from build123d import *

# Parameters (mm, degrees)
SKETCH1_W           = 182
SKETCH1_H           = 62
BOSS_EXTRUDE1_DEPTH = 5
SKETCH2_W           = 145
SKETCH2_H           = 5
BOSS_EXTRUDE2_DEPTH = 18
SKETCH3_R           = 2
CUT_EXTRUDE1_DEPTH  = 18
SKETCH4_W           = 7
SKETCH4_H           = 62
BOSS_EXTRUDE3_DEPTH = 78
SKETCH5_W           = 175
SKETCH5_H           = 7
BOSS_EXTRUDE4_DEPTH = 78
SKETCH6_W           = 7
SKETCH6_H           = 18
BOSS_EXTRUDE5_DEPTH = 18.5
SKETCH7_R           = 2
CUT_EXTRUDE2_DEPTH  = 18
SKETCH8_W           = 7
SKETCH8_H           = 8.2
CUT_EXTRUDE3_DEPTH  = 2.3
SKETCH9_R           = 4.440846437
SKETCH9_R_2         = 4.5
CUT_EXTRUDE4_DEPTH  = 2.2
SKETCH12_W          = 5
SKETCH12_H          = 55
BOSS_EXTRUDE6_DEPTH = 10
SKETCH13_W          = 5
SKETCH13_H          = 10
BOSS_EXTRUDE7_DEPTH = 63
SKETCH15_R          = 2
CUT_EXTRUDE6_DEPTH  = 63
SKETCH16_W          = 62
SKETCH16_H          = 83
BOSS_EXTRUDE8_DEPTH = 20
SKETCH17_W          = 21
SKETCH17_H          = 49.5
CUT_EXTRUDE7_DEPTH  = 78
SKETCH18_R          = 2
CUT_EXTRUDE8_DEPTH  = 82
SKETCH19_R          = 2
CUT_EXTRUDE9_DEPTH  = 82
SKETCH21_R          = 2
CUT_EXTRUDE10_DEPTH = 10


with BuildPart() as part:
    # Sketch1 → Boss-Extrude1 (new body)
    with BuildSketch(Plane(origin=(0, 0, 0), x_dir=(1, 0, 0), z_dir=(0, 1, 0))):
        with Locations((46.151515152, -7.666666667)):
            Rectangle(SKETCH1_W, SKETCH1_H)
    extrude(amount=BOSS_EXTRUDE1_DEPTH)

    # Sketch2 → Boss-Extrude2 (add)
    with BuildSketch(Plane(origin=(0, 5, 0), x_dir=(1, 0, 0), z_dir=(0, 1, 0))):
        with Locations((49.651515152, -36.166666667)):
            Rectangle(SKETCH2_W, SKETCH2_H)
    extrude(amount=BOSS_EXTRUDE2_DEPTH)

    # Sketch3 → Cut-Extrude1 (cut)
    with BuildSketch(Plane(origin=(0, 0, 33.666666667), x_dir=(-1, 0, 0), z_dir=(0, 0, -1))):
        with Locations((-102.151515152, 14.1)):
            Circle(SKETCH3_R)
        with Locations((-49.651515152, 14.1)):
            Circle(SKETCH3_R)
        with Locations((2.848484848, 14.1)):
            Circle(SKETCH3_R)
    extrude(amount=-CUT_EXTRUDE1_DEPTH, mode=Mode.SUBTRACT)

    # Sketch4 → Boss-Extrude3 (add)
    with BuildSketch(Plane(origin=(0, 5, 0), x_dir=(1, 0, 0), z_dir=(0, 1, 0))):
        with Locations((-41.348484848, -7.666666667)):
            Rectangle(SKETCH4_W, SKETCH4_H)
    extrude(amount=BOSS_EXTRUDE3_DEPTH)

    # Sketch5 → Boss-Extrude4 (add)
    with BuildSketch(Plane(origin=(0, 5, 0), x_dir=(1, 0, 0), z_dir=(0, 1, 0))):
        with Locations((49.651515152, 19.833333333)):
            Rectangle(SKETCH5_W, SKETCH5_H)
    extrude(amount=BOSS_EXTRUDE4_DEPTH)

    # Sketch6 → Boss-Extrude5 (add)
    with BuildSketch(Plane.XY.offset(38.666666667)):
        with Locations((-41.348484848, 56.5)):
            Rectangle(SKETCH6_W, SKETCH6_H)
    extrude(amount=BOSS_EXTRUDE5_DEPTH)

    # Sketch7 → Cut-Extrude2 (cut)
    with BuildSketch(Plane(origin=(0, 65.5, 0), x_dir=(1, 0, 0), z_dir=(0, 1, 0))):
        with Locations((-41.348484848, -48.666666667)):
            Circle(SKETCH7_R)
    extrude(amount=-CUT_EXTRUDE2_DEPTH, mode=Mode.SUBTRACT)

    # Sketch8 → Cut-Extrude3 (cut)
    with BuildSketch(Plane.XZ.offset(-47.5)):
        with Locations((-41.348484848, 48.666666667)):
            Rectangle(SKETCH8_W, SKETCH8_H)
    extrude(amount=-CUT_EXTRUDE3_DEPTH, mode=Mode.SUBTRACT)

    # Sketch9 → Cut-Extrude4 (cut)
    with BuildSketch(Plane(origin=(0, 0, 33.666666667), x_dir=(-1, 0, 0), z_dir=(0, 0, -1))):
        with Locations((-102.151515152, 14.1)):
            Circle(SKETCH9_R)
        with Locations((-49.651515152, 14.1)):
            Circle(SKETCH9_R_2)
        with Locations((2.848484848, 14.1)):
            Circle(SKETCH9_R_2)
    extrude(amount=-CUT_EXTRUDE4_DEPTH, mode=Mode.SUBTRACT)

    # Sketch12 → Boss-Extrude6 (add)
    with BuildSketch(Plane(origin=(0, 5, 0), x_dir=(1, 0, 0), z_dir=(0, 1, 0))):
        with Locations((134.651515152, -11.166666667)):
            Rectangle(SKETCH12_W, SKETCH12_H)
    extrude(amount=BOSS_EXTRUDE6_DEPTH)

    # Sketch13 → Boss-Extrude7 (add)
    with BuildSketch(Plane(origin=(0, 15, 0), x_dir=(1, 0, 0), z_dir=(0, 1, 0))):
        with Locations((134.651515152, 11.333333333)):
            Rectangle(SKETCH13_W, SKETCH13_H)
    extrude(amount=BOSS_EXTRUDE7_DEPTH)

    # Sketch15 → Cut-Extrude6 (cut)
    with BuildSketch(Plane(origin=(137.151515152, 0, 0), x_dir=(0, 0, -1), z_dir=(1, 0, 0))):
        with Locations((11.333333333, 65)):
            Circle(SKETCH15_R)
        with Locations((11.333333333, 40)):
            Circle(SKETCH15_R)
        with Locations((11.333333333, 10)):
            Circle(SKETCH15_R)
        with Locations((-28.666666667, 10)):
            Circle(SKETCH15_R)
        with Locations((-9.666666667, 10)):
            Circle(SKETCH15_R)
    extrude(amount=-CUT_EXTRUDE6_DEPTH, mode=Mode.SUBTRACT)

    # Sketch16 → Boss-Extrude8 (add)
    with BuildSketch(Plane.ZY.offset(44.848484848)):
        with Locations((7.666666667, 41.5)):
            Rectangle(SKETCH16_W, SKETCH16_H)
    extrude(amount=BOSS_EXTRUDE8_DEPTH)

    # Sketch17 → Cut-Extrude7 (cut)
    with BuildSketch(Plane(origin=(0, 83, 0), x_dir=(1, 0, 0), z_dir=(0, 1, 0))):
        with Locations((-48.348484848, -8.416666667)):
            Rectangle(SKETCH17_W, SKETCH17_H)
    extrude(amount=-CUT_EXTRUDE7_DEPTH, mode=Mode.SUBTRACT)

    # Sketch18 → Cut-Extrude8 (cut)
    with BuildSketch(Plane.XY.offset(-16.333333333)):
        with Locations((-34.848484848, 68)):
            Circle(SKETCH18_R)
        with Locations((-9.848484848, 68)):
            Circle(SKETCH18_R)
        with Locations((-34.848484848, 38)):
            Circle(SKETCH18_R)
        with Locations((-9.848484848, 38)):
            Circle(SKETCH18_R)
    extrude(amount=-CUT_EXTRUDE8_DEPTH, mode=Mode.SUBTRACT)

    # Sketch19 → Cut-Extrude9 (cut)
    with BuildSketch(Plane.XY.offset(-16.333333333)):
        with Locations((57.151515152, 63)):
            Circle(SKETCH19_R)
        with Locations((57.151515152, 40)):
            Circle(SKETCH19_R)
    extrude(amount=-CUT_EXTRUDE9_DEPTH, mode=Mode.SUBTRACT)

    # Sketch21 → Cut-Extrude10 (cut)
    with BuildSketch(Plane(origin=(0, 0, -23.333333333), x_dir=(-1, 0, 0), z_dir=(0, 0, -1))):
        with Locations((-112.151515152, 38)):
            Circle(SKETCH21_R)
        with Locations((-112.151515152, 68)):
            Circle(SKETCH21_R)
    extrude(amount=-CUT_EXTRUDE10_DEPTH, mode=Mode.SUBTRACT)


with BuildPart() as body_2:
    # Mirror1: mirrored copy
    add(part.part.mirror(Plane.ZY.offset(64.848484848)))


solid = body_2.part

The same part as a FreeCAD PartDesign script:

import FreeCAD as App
import Part
import Sketcher
from FreeCAD import Vector
Q = App.Units.Quantity

doc = App.newDocument("Part")
body = doc.addObject("PartDesign::Body", "Body")

# Sketch on XZ plane
sketch1 = doc.addObject("Sketcher::SketchObject", "Sketch")
body.addObject(sketch1)
sketch1.AttachmentSupport = (doc.XZ_Plane, [""])
sketch1.MapMode = "FlatFace"
sketch1.addGeometry([
    Part.LineSegment(Vector(-45, -23, 0), Vector(-45, 39, 0)),
    Part.LineSegment(Vector(-45, 39, 0), Vector(137, 39, 0)),
    Part.LineSegment(Vector(137, 39, 0), Vector(137, -23, 0)),
    Part.LineSegment(Vector(137, -23, 0), Vector(-45, -23, 0)),
], False)
sketch1.addConstraint([
    Sketcher.Constraint("Coincident", 0, 2, 1, 1),
    Sketcher.Constraint("Coincident", 1, 2, 2, 1),
    Sketcher.Constraint("Coincident", 2, 2, 3, 1),
    Sketcher.Constraint("Coincident", 3, 2, 0, 1),
    Sketcher.Constraint("Vertical", 0),
    Sketcher.Constraint("Horizontal", 1),
    Sketcher.Constraint("Vertical", 2),
    Sketcher.Constraint("Horizontal", 3),
    Sketcher.Constraint("DistanceX", 1, 1, 1, 2, Q("182 mm")),
    Sketcher.Constraint("DistanceY", 0, 1, 0, 2, Q("62 mm")),
    Sketcher.Constraint("DistanceX", 0, 2, -1, 1, Q("44.848485 mm")),
    Sketcher.Constraint("DistanceY", -1, 1, 0, 2, Q("38.666667 mm")),
])
pad1 = doc.addObject("PartDesign::Pad", "Pad")
body.addObject(pad1)
pad1.Profile = sketch1
pad1.Length = 5
pad1.Reversed = True

# Sketch on XZ plane
sketch2 = doc.addObject("Sketcher::SketchObject", "Sketch001")
body.addObject(sketch2)
sketch2.AttachmentSupport = (doc.XZ_Plane, [""])
sketch2.MapMode = "FlatFace"
sketch2.AttachmentOffset = App.Placement(Vector(0, 0, -5), App.Rotation())
sketch2.addGeometry([
    Part.LineSegment(Vector(-23, 34, 0), Vector(-23, 39, 0)),
    Part.LineSegment(Vector(-23, 39, 0), Vector(122, 39, 0)),
    Part.LineSegment(Vector(122, 39, 0), Vector(122, 34, 0)),
    Part.LineSegment(Vector(122, 34, 0), Vector(-23, 34, 0)),
], False)
sketch2.addConstraint([
    Sketcher.Constraint("Coincident", 0, 2, 1, 1),
    Sketcher.Constraint("Coincident", 1, 2, 2, 1),
    Sketcher.Constraint("Coincident", 2, 2, 3, 1),
    Sketcher.Constraint("Coincident", 3, 2, 0, 1),
    Sketcher.Constraint("Vertical", 0),
    Sketcher.Constraint("Horizontal", 1),
    Sketcher.Constraint("Vertical", 2),
    Sketcher.Constraint("Horizontal", 3),
    Sketcher.Constraint("DistanceX", 1, 1, 1, 2, Q("145 mm")),
    Sketcher.Constraint("DistanceY", 0, 1, 0, 2, Q("5 mm")),
    Sketcher.Constraint("DistanceX", 0, 2, -1, 1, Q("22.848485 mm")),
    Sketcher.Constraint("DistanceY", -1, 1, 0, 2, Q("38.666667 mm")),
])
pad2 = doc.addObject("PartDesign::Pad", "Pad001")
body.addObject(pad2)
pad2.Profile = sketch2
pad2.Length = 18
pad2.Reversed = True

# Sketch on XY plane
sketch3 = doc.addObject("Sketcher::SketchObject", "Sketch002")
body.addObject(sketch3)
sketch3.AttachmentSupport = (doc.XY_Plane, [""])
sketch3.MapMode = "FlatFace"
sketch3.AttachmentOffset = App.Placement(Vector(0, 0, 33.666667), App.Rotation())
sketch3.addGeometry([
    Part.Circle(Vector(102.2, 14.1, 0), Vector(0, 0, 1), 2),
    Part.Circle(Vector(49.7, 14.1, 0), Vector(0, 0, 1), 2),
    Part.Circle(Vector(-2.8, 14.1, 0), Vector(0, 0, 1), 2),
], False)
sketch3.addConstraint([
    Sketcher.Constraint("Equal", 0, 1),
    Sketcher.Constraint("Equal", 1, 2),
    Sketcher.Constraint("Horizontal", 0, 3, 1, 3),
    Sketcher.Constraint("Horizontal", 1, 3, 2, 3),
    Sketcher.Constraint("Diameter", 0, Q("4 mm")),
    Sketcher.Constraint("DistanceX", 2, 3, 0, 3, Q("105 mm")),
    Sketcher.Constraint("DistanceY", -1, 1, 0, 3, Q("14.1 mm")),
    Sketcher.Constraint("DistanceX", 1, 3, 0, 3, Q("52.5 mm")),
    Sketcher.Constraint("DistanceX", -1, 1, 0, 3, Q("102.151515 mm")),
])
pocket1 = doc.addObject("PartDesign::Pocket", "Pocket")
body.addObject(pocket1)
pocket1.Profile = sketch3
pocket1.Length = 18
pocket1.Reversed = True

# Sketch on XZ plane
sketch4 = doc.addObject("Sketcher::SketchObject", "Sketch003")
body.addObject(sketch4)
sketch4.AttachmentSupport = (doc.XZ_Plane, [""])
sketch4.MapMode = "FlatFace"
sketch4.AttachmentOffset = App.Placement(Vector(0, 0, -5), App.Rotation())
sketch4.addGeometry([
    Part.LineSegment(Vector(-45, -23, 0), Vector(-45, 39, 0)),
    Part.LineSegment(Vector(-45, 39, 0), Vector(-38, 39, 0)),
    Part.LineSegment(Vector(-38, 39, 0), Vector(-38, -23, 0)),
    Part.LineSegment(Vector(-38, -23, 0), Vector(-45, -23, 0)),
], False)
sketch4.addConstraint([
    Sketcher.Constraint("Coincident", 0, 2, 1, 1),
    Sketcher.Constraint("Coincident", 1, 2, 2, 1),
    Sketcher.Constraint("Coincident", 2, 2, 3, 1),
    Sketcher.Constraint("Coincident", 3, 2, 0, 1),
    Sketcher.Constraint("Vertical", 0),
    Sketcher.Constraint("Horizontal", 1),
    Sketcher.Constraint("Vertical", 2),
    Sketcher.Constraint("Horizontal", 3),
    Sketcher.Constraint("DistanceX", 1, 1, 1, 2, Q("7 mm")),
    Sketcher.Constraint("DistanceY", 0, 1, 0, 2, Q("62 mm")),
    Sketcher.Constraint("DistanceX", 0, 2, -1, 1, Q("44.848485 mm")),
    Sketcher.Constraint("DistanceY", -1, 1, 0, 2, Q("38.666667 mm")),
])
pad3 = doc.addObject("PartDesign::Pad", "Pad002")
body.addObject(pad3)
pad3.Profile = sketch4
pad3.Length = 78
pad3.Reversed = True

# Sketch on XZ plane
sketch5 = doc.addObject("Sketcher::SketchObject", "Sketch004")
body.addObject(sketch5)
sketch5.AttachmentSupport = (doc.XZ_Plane, [""])
sketch5.MapMode = "FlatFace"
sketch5.AttachmentOffset = App.Placement(Vector(0, 0, -5), App.Rotation())
sketch5.addGeometry([
    Part.LineSegment(Vector(-38, -23, 0), Vector(-38, -16, 0)),
    Part.LineSegment(Vector(-38, -16, 0), Vector(137, -16, 0)),
    Part.LineSegment(Vector(137, -16, 0), Vector(137, -23, 0)),
    Part.LineSegment(Vector(137, -23, 0), Vector(-38, -23, 0)),
], False)
sketch5.addConstraint([
    Sketcher.Constraint("Coincident", 0, 2, 1, 1),
    Sketcher.Constraint("Coincident", 1, 2, 2, 1),
    Sketcher.Constraint("Coincident", 2, 2, 3, 1),
    Sketcher.Constraint("Coincident", 3, 2, 0, 1),
    Sketcher.Constraint("Vertical", 0),
    Sketcher.Constraint("Horizontal", 1),
    Sketcher.Constraint("Vertical", 2),
    Sketcher.Constraint("Horizontal", 3),
    Sketcher.Constraint("DistanceX", 1, 1, 1, 2, Q("175 mm")),
    Sketcher.Constraint("DistanceY", 0, 1, 0, 2, Q("7 mm")),
    Sketcher.Constraint("DistanceX", 0, 2, -1, 1, Q("37.848485 mm")),
    Sketcher.Constraint("DistanceY", 0, 2, -1, 1, Q("16.333333 mm")),
])
pad4 = doc.addObject("PartDesign::Pad", "Pad003")
body.addObject(pad4)
pad4.Profile = sketch5
pad4.Length = 78
pad4.Reversed = True

# Sketch on XY plane
sketch6 = doc.addObject("Sketcher::SketchObject", "Sketch005")
body.addObject(sketch6)
sketch6.AttachmentSupport = (doc.XY_Plane, [""])
sketch6.MapMode = "FlatFace"
sketch6.AttachmentOffset = App.Placement(Vector(0, 0, 38.666667), App.Rotation())
sketch6.addGeometry([
    Part.LineSegment(Vector(-45, 66, 0), Vector(-45, 48, 0)),
    Part.LineSegment(Vector(-45, 48, 0), Vector(-38, 48, 0)),
    Part.LineSegment(Vector(-38, 48, 0), Vector(-38, 66, 0)),
    Part.LineSegment(Vector(-38, 66, 0), Vector(-45, 66, 0)),
], False)
sketch6.addConstraint([
    Sketcher.Constraint("Coincident", 0, 2, 1, 1),
    Sketcher.Constraint("Coincident", 1, 2, 2, 1),
    Sketcher.Constraint("Coincident", 2, 2, 3, 1),
    Sketcher.Constraint("Coincident", 3, 2, 0, 1),
    Sketcher.Constraint("Vertical", 0),
    Sketcher.Constraint("Horizontal", 1),
    Sketcher.Constraint("Vertical", 2),
    Sketcher.Constraint("Horizontal", 3),
    Sketcher.Constraint("DistanceX", 1, 1, 1, 2, Q("7 mm")),
    Sketcher.Constraint("DistanceY", 0, 2, 0, 1, Q("18 mm")),
    Sketcher.Constraint("DistanceY", -1, 1, 0, 2, Q("47.5 mm")),
    Sketcher.Constraint("DistanceX", 0, 2, -1, 1, Q("44.848485 mm")),
])
pad5 = doc.addObject("PartDesign::Pad", "Pad004")
body.addObject(pad5)
pad5.Profile = sketch6
pad5.Length = 18.5

# Sketch on XZ plane
sketch7 = doc.addObject("Sketcher::SketchObject", "Sketch006")
body.addObject(sketch7)
sketch7.AttachmentSupport = (doc.XZ_Plane, [""])
sketch7.MapMode = "FlatFace"
sketch7.AttachmentOffset = App.Placement(Vector(0, 0, -65.5), App.Rotation())
sketch7.addGeometry(Part.Circle(Vector(-41.3, 48.7, 0), Vector(0, 0, 1), 2), False)
sketch7.addConstraint([
    Sketcher.Constraint("Diameter", 0, Q("4 mm")),
    Sketcher.Constraint("DistanceX", 0, 3, -1, 1, Q("41.348485 mm")),
    Sketcher.Constraint("DistanceY", -1, 1, 0, 3, Q("48.666667 mm")),
])
pocket2 = doc.addObject("PartDesign::Pocket", "Pocket001")
body.addObject(pocket2)
pocket2.Profile = sketch7
pocket2.Length = 18
pocket2.Reversed = True

# Sketch on XZ plane
sketch8 = doc.addObject("Sketcher::SketchObject", "Sketch007")
body.addObject(sketch8)
sketch8.AttachmentSupport = (doc.XZ_Plane, [""])
sketch8.MapMode = "FlatFace"
sketch8.AttachmentOffset = App.Placement(Vector(0, 0, -47.5), App.Rotation())
sketch8.addGeometry([
    Part.LineSegment(Vector(-45, 53, 0), Vector(-45, 45, 0)),
    Part.LineSegment(Vector(-45, 45, 0), Vector(-38, 45, 0)),
    Part.LineSegment(Vector(-38, 45, 0), Vector(-38, 53, 0)),
    Part.LineSegment(Vector(-38, 53, 0), Vector(-45, 53, 0)),
], False)
sketch8.addConstraint([
    Sketcher.Constraint("Coincident", 0, 2, 1, 1),
    Sketcher.Constraint("Coincident", 1, 2, 2, 1),
    Sketcher.Constraint("Coincident", 2, 2, 3, 1),
    Sketcher.Constraint("Coincident", 3, 2, 0, 1),
    Sketcher.Constraint("Vertical", 0),
    Sketcher.Constraint("Horizontal", 1),
    Sketcher.Constraint("Vertical", 2),
    Sketcher.Constraint("Horizontal", 3),
    Sketcher.Constraint("DistanceX", 1, 1, 1, 2, Q("7 mm")),
    Sketcher.Constraint("DistanceY", 0, 2, 0, 1, Q("8.2 mm")),
    Sketcher.Constraint("DistanceX", 0, 2, -1, 1, Q("44.848485 mm")),
    Sketcher.Constraint("DistanceY", -1, 1, 0, 2, Q("44.566667 mm")),
])
pocket3 = doc.addObject("PartDesign::Pocket", "Pocket002")
body.addObject(pocket3)
pocket3.Profile = sketch8
pocket3.Length = 2.3

# Sketch on XY plane
sketch9 = doc.addObject("Sketcher::SketchObject", "Sketch008")
body.addObject(sketch9)
sketch9.AttachmentSupport = (doc.XY_Plane, [""])
sketch9.MapMode = "FlatFace"
sketch9.AttachmentOffset = App.Placement(Vector(0, 0, 33.666667), App.Rotation())
sketch9.addGeometry([
    Part.Circle(Vector(102.2, 14.1, 0), Vector(0, 0, 1), 4.4),
    Part.Circle(Vector(49.7, 14.1, 0), Vector(0, 0, 1), 4.5),
    Part.Circle(Vector(-2.8, 14.1, 0), Vector(0, 0, 1), 4.5),
], False)
sketch9.addConstraint([
    Sketcher.Constraint("Equal", 1, 2),
    Sketcher.Constraint("Horizontal", 0, 3, 1, 3),
    Sketcher.Constraint("Horizontal", 1, 3, 2, 3),
    Sketcher.Constraint("Diameter", 1, Q("9 mm")),
    Sketcher.Constraint("DistanceX", 2, 3, 0, 3, Q("105 mm")),
    Sketcher.Constraint("DistanceY", -1, 1, 0, 3, Q("14.1 mm")),
    Sketcher.Constraint("DistanceX", 1, 3, 0, 3, Q("52.5 mm")),
    Sketcher.Constraint("Diameter", 0, Q("8.881693 mm")),
    Sketcher.Constraint("DistanceX", -1, 1, 0, 3, Q("102.151515 mm")),
])
pocket4 = doc.addObject("PartDesign::Pocket", "Pocket003")
body.addObject(pocket4)
pocket4.Profile = sketch9
pocket4.Length = 2.2
pocket4.Reversed = True

# Sketch on XZ plane
sketch10 = doc.addObject("Sketcher::SketchObject", "Sketch009")
body.addObject(sketch10)
sketch10.AttachmentSupport = (doc.XZ_Plane, [""])
sketch10.MapMode = "FlatFace"
sketch10.AttachmentOffset = App.Placement(Vector(0, 0, -5), App.Rotation())
sketch10.addGeometry([
    Part.LineSegment(Vector(132, -16, 0), Vector(132, 39, 0)),
    Part.LineSegment(Vector(132, 39, 0), Vector(137, 39, 0)),
    Part.LineSegment(Vector(137, 39, 0), Vector(137, -16, 0)),
    Part.LineSegment(Vector(137, -16, 0), Vector(132, -16, 0)),
], False)
sketch10.addConstraint([
    Sketcher.Constraint("Coincident", 0, 2, 1, 1),
    Sketcher.Constraint("Coincident", 1, 2, 2, 1),
    Sketcher.Constraint("Coincident", 2, 2, 3, 1),
    Sketcher.Constraint("Coincident", 3, 2, 0, 1),
    Sketcher.Constraint("Vertical", 0),
    Sketcher.Constraint("Horizontal", 1),
    Sketcher.Constraint("Vertical", 2),
    Sketcher.Constraint("Horizontal", 3),
    Sketcher.Constraint("DistanceX", 1, 1, 1, 2, Q("5 mm")),
    Sketcher.Constraint("DistanceY", 0, 1, 0, 2, Q("55 mm")),
    Sketcher.Constraint("DistanceX", -1, 1, 0, 2, Q("132.151515 mm")),
    Sketcher.Constraint("DistanceY", -1, 1, 0, 2, Q("38.666667 mm")),
])
pad6 = doc.addObject("PartDesign::Pad", "Pad005")
body.addObject(pad6)
pad6.Profile = sketch10
pad6.Length = 10
pad6.Reversed = True

# Sketch on XZ plane
sketch11 = doc.addObject("Sketcher::SketchObject", "Sketch010")
body.addObject(sketch11)
sketch11.AttachmentSupport = (doc.XZ_Plane, [""])
sketch11.MapMode = "FlatFace"
sketch11.AttachmentOffset = App.Placement(Vector(0, 0, -15), App.Rotation())
sketch11.addGeometry([
    Part.LineSegment(Vector(132, -16, 0), Vector(132, -6, 0)),
    Part.LineSegment(Vector(132, -6, 0), Vector(137, -6, 0)),
    Part.LineSegment(Vector(137, -6, 0), Vector(137, -16, 0)),
    Part.LineSegment(Vector(137, -16, 0), Vector(132, -16, 0)),
], False)
sketch11.addConstraint([
    Sketcher.Constraint("Coincident", 0, 2, 1, 1),
    Sketcher.Constraint("Coincident", 1, 2, 2, 1),
    Sketcher.Constraint("Coincident", 2, 2, 3, 1),
    Sketcher.Constraint("Coincident", 3, 2, 0, 1),
    Sketcher.Constraint("Vertical", 0),
    Sketcher.Constraint("Horizontal", 1),
    Sketcher.Constraint("Vertical", 2),
    Sketcher.Constraint("Horizontal", 3),
    Sketcher.Constraint("DistanceX", 1, 1, 1, 2, Q("5 mm")),
    Sketcher.Constraint("DistanceY", 0, 1, 0, 2, Q("10 mm")),
    Sketcher.Constraint("DistanceX", -1, 1, 0, 2, Q("132.151515 mm")),
    Sketcher.Constraint("DistanceY", 0, 2, -1, 1, Q("6.333333 mm")),
])
pad7 = doc.addObject("PartDesign::Pad", "Pad006")
body.addObject(pad7)
pad7.Profile = sketch11
pad7.Length = 63
pad7.Reversed = True

# Sketch on YZ plane
sketch12 = doc.addObject("Sketcher::SketchObject", "Sketch011")
body.addObject(sketch12)
sketch12.AttachmentSupport = (doc.YZ_Plane, [""])
sketch12.MapMode = "FlatFace"
sketch12.AttachmentOffset = App.Placement(Vector(0, 0, 137.151515), App.Rotation())
sketch12.addGeometry([
    Part.Circle(Vector(65, -11.3, 0), Vector(0, 0, 1), 2),  # 0
    Part.Circle(Vector(40, -11.3, 0), Vector(0, 0, 1), 2),  # 1
    Part.Circle(Vector(10, -11.3, 0), Vector(0, 0, 1), 2),  # 2
    Part.Circle(Vector(10, 28.7, 0), Vector(0, 0, 1), 2),  # 3
    Part.Circle(Vector(10, 9.7, 0), Vector(0, 0, 1), 2),  # 4
], False)
sketch12.addConstraint([
    Sketcher.Constraint("Equal", 0, 1),
    Sketcher.Constraint("Equal", 1, 2),
    Sketcher.Constraint("Equal", 2, 3),
    Sketcher.Constraint("Equal", 3, 4),
    Sketcher.Constraint("Horizontal", 0, 3, 1, 3),
    Sketcher.Constraint("Horizontal", 1, 3, 2, 3),
    Sketcher.Constraint("Vertical", 2, 3, 3, 3),
    Sketcher.Constraint("Vertical", 3, 3, 4, 3),
    Sketcher.Constraint("Diameter", 0, Q("4 mm")),
    Sketcher.Constraint("DistanceX", -1, 1, 0, 3, Q("65 mm")),
    Sketcher.Constraint("DistanceX", -1, 1, 1, 3, Q("40 mm")),
    Sketcher.Constraint("DistanceX", -1, 1, 2, 3, Q("10 mm")),
    Sketcher.Constraint("DistanceY", 2, 3, 3, 3, Q("40 mm")),
    Sketcher.Constraint("DistanceY", 4, 3, 3, 3, Q("19 mm")),
    Sketcher.Constraint("DistanceY", 0, 3, -1, 1, Q("11.333333 mm")),
])
pocket5 = doc.addObject("PartDesign::Pocket", "Pocket004")
body.addObject(pocket5)
pocket5.Profile = sketch12
pocket5.Length = 63

# Sketch on YZ plane
sketch13 = doc.addObject("Sketcher::SketchObject", "Sketch012")
body.addObject(sketch13)
sketch13.AttachmentSupport = (doc.YZ_Plane, [""])
sketch13.MapMode = "FlatFace"
sketch13.AttachmentOffset = App.Placement(Vector(0, 0, -44.848485), App.Rotation())
sketch13.addGeometry([
    Part.LineSegment(Vector(83, -23, 0), Vector(0, -23, 0)),
    Part.LineSegment(Vector(0, -23, 0), Vector(0, 39, 0)),
    Part.LineSegment(Vector(0, 39, 0), Vector(83, 39, 0)),
    Part.LineSegment(Vector(83, 39, 0), Vector(83, -23, 0)),
], False)
sketch13.addConstraint([
    Sketcher.Constraint("Coincident", 0, 2, 1, 1),
    Sketcher.Constraint("Coincident", 1, 2, 2, 1),
    Sketcher.Constraint("Coincident", 2, 2, 3, 1),
    Sketcher.Constraint("Coincident", 3, 2, 0, 1),
    Sketcher.Constraint("Horizontal", 0),
    Sketcher.Constraint("Vertical", 1),
    Sketcher.Constraint("Horizontal", 2),
    Sketcher.Constraint("Vertical", 3),
    Sketcher.Constraint("PointOnObject", 0, 2, -2),
    Sketcher.Constraint("DistanceX", 0, 2, 0, 1, Q("83 mm")),
    Sketcher.Constraint("DistanceY", 1, 1, 1, 2, Q("62 mm")),
    Sketcher.Constraint("DistanceY", 0, 2, -1, 1, Q("23.333333 mm")),
])
pad8 = doc.addObject("PartDesign::Pad", "Pad007")
body.addObject(pad8)
pad8.Profile = sketch13
pad8.Length = 20
pad8.Reversed = True

# Sketch on XZ plane
sketch14 = doc.addObject("Sketcher::SketchObject", "Sketch013")
body.addObject(sketch14)
sketch14.AttachmentSupport = (doc.XZ_Plane, [""])
sketch14.MapMode = "FlatFace"
sketch14.AttachmentOffset = App.Placement(Vector(0, 0, -83), App.Rotation())
sketch14.addGeometry([
    Part.LineSegment(Vector(-59, -16, 0), Vector(-59, 33, 0)),
    Part.LineSegment(Vector(-59, 33, 0), Vector(-38, 33, 0)),
    Part.LineSegment(Vector(-38, 33, 0), Vector(-38, -16, 0)),
    Part.LineSegment(Vector(-38, -16, 0), Vector(-59, -16, 0)),
], False)
sketch14.addConstraint([
    Sketcher.Constraint("Coincident", 0, 2, 1, 1),
    Sketcher.Constraint("Coincident", 1, 2, 2, 1),
    Sketcher.Constraint("Coincident", 2, 2, 3, 1),
    Sketcher.Constraint("Coincident", 3, 2, 0, 1),
    Sketcher.Constraint("Vertical", 0),
    Sketcher.Constraint("Horizontal", 1),
    Sketcher.Constraint("Vertical", 2),
    Sketcher.Constraint("Horizontal", 3),
    Sketcher.Constraint("DistanceX", 1, 1, 1, 2, Q("21 mm")),
    Sketcher.Constraint("DistanceY", 0, 1, 0, 2, Q("49.5 mm")),
    Sketcher.Constraint("DistanceX", 0, 2, -1, 1, Q("58.848485 mm")),
    Sketcher.Constraint("DistanceY", -1, 1, 0, 2, Q("33.166667 mm")),
])
pocket6 = doc.addObject("PartDesign::Pocket", "Pocket005")
body.addObject(pocket6)
pocket6.Profile = sketch14
pocket6.Length = 78
pocket6.Reversed = True

# Sketch on XY plane
sketch15 = doc.addObject("Sketcher::SketchObject", "Sketch014")
body.addObject(sketch15)
sketch15.AttachmentSupport = (doc.XY_Plane, [""])
sketch15.MapMode = "FlatFace"
sketch15.AttachmentOffset = App.Placement(Vector(0, 0, -16.333333), App.Rotation())
sketch15.addGeometry([
    Part.Circle(Vector(-34.8, 68, 0), Vector(0, 0, 1), 2),
    Part.Circle(Vector(-9.8, 68, 0), Vector(0, 0, 1), 2),
    Part.Circle(Vector(-34.8, 38, 0), Vector(0, 0, 1), 2),
    Part.Circle(Vector(-9.8, 38, 0), Vector(0, 0, 1), 2),
], False)
sketch15.addConstraint([
    Sketcher.Constraint("Equal", 0, 1),
    Sketcher.Constraint("Equal", 1, 2),
    Sketcher.Constraint("Equal", 2, 3),
    Sketcher.Constraint("Horizontal", 0, 3, 1, 3),
    Sketcher.Constraint("Horizontal", 2, 3, 3, 3),
    Sketcher.Constraint("Vertical", 0, 3, 2, 3),
    Sketcher.Constraint("Vertical", 1, 3, 3, 3),
    Sketcher.Constraint("Diameter", 0, Q("4 mm")),
    Sketcher.Constraint("DistanceY", -1, 1, 0, 3, Q("68 mm")),
    Sketcher.Constraint("DistanceY", -1, 1, 2, 3, Q("38 mm")),
    Sketcher.Constraint("DistanceX", 0, 3, 1, 3, Q("25 mm")),
    Sketcher.Constraint("DistanceX", 0, 3, -1, 1, Q("34.848485 mm")),
])
pocket7 = doc.addObject("PartDesign::Pocket", "Pocket006")
body.addObject(pocket7)
pocket7.Profile = sketch15
pocket7.Length = 82

# Sketch on XY plane
sketch16 = doc.addObject("Sketcher::SketchObject", "Sketch015")
body.addObject(sketch16)
sketch16.AttachmentSupport = (doc.XY_Plane, [""])
sketch16.MapMode = "FlatFace"
sketch16.AttachmentOffset = App.Placement(Vector(0, 0, -16.333333), App.Rotation())
sketch16.addGeometry([
    Part.Circle(Vector(57.2, 63, 0), Vector(0, 0, 1), 2),
    Part.Circle(Vector(57.2, 40, 0), Vector(0, 0, 1), 2),
], False)
sketch16.addConstraint([
    Sketcher.Constraint("Equal", 0, 1),
    Sketcher.Constraint("Vertical", 0, 3, 1, 3),
    Sketcher.Constraint("Diameter", 0, Q("4 mm")),
    Sketcher.Constraint("DistanceY", -1, 1, 0, 3, Q("63 mm")),
    Sketcher.Constraint("DistanceY", -1, 1, 1, 3, Q("40 mm")),
    Sketcher.Constraint("DistanceX", -1, 1, 0, 3, Q("57.151515 mm")),
])
pocket8 = doc.addObject("PartDesign::Pocket", "Pocket007")
body.addObject(pocket8)
pocket8.Profile = sketch16
pocket8.Length = 82

# Sketch on XY plane
sketch17 = doc.addObject("Sketcher::SketchObject", "Sketch016")
body.addObject(sketch17)
sketch17.AttachmentSupport = (doc.XY_Plane, [""])
sketch17.MapMode = "FlatFace"
sketch17.AttachmentOffset = App.Placement(Vector(0, 0, -23.333333), App.Rotation())
sketch17.addGeometry([
    Part.Circle(Vector(112.2, 38, 0), Vector(0, 0, 1), 2),
    Part.Circle(Vector(112.2, 68, 0), Vector(0, 0, 1), 2),
], False)
sketch17.addConstraint([
    Sketcher.Constraint("Equal", 0, 1),
    Sketcher.Constraint("Vertical", 0, 3, 1, 3),
    Sketcher.Constraint("Diameter", 0, Q("4 mm")),
    Sketcher.Constraint("DistanceY", -1, 1, 0, 3, Q("38 mm")),
    Sketcher.Constraint("DistanceY", -1, 1, 1, 3, Q("68 mm")),
    Sketcher.Constraint("DistanceX", -1, 1, 0, 3, Q("112.151515 mm")),
])
pocket9 = doc.addObject("PartDesign::Pocket", "Pocket008")
body.addObject(pocket9)
pocket9.Profile = sketch17
pocket9.Length = 10
pocket9.Reversed = True
body2 = doc.addObject("PartDesign::Body", "Body001")
doc.recompute()

mirroring = doc.addObject("Part::Mirroring", "Mirroring")
mirroring.Source = body
mirroring.Base = Vector(-64.848485, 0, 0)
mirroring.Normal = Vector(-1, 0, 0)
body2.BaseFeature = mirroring
doc.recompute()
body.Visibility = False
mirroring.Visibility = False

doc.recompute()
